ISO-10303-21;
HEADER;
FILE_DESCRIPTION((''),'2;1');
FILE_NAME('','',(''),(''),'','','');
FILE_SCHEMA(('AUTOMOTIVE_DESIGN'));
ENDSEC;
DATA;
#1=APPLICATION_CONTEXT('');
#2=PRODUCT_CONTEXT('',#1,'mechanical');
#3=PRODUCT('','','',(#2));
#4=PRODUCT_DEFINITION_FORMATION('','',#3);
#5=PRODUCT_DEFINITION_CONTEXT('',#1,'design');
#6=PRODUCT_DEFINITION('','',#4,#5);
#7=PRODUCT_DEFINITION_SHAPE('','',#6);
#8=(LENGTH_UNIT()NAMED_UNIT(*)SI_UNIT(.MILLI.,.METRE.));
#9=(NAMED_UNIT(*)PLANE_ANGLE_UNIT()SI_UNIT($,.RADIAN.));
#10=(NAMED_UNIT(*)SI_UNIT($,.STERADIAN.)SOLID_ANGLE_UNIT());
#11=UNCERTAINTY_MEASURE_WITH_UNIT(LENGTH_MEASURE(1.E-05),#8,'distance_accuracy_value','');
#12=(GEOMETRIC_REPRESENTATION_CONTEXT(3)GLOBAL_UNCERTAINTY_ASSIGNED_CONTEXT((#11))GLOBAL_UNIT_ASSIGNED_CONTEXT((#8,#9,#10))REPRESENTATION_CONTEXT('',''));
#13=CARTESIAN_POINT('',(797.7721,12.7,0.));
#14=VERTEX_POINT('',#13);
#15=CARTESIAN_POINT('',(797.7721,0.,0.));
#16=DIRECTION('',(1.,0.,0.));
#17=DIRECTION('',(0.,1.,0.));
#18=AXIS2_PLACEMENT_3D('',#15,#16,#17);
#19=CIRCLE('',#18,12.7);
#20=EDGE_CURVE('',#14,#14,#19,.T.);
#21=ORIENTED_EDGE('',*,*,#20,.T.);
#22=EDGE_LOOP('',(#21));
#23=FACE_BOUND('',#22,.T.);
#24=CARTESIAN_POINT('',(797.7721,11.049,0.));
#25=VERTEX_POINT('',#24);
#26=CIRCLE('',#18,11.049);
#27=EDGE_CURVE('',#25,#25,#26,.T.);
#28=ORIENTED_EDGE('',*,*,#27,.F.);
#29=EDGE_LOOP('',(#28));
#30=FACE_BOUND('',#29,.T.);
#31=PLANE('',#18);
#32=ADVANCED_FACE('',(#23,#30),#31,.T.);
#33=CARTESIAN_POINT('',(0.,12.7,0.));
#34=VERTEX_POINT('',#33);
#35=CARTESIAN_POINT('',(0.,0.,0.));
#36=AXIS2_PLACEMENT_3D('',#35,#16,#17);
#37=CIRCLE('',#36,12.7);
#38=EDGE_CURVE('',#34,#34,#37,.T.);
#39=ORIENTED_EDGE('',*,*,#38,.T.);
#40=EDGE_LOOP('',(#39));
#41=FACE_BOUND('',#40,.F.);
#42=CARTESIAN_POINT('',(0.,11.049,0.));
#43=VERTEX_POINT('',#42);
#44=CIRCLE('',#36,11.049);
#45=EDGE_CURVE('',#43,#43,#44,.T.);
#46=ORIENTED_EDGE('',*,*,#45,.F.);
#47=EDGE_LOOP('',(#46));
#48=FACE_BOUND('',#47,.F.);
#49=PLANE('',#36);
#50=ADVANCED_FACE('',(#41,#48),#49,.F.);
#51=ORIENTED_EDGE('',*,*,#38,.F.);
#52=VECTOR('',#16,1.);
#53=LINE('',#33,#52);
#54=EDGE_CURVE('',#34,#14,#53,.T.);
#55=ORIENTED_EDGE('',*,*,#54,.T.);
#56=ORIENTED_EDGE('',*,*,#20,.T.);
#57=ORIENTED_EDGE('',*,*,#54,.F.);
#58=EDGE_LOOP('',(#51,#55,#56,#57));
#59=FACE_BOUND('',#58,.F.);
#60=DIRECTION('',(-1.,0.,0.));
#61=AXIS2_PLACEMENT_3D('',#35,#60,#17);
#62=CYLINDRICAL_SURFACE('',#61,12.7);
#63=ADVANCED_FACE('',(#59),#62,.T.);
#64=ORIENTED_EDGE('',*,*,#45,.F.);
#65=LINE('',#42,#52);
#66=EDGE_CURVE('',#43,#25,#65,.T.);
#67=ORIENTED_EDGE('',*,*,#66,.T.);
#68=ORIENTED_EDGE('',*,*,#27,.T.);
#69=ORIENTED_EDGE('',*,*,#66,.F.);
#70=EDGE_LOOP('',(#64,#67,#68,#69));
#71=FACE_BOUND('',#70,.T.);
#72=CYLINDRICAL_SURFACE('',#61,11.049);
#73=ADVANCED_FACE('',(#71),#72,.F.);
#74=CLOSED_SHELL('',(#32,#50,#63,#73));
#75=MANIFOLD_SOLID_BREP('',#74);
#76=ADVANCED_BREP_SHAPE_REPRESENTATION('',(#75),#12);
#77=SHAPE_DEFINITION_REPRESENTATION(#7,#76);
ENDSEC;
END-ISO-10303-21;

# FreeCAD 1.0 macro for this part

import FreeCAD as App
import Part
import Sketcher
Q = App.Units.Quantity

doc = App.newDocument("Part")
params = doc.addObject("Spreadsheet::Sheet", "Params")
for row, (alias, value) in enumerate([
    ("sketch1_diameter", "1 in"),
    ("sketch1_diameter2", "0.87 in"),
    ("pad1_length", "797.7721 mm"),
], start=1):
    params.set(f"A{row}", alias)
    params.set(f"B{row}", "=" + value)
    params.setAlias(f"B{row}", alias)

body = doc.addObject("PartDesign::Body", "Body")

# Sketch on YZ plane
sketch1 = body.newObject("Sketcher::SketchObject", "Sketch")
sketch1.AttachmentSupport = (doc.getObject("YZ_Plane"), [""])
sketch1.MapMode = "FlatFace"
sketch1.addGeometry(Part.Circle(App.Vector(0, 0, 0), App.Vector(0, 0, 1), 13), False)
sketch1.addGeometry(Part.Circle(App.Vector(0, 0, 0), App.Vector(0, 0, 1), 11), False)
sketch1.addConstraint(Sketcher.Constraint("Coincident", 0, 3, -1, 1))
sketch1.addConstraint(Sketcher.Constraint("Coincident", 1, 3, -1, 1))
sketch1.addConstraint(Sketcher.Constraint("Diameter", 0, Q("1 in")))
sketch1.addConstraint(Sketcher.Constraint("Diameter", 1, Q("0.87 in")))
sketch1.setExpression("Constraints[2]", "Params.sketch1_diameter")
sketch1.setExpression("Constraints[3]", "Params.sketch1_diameter2")
pad1 = body.newObject("PartDesign::Pad", "Pad")
pad1.Profile = sketch1
pad1.setExpression("Length", "Params.pad1_length")

doc.recompute()
